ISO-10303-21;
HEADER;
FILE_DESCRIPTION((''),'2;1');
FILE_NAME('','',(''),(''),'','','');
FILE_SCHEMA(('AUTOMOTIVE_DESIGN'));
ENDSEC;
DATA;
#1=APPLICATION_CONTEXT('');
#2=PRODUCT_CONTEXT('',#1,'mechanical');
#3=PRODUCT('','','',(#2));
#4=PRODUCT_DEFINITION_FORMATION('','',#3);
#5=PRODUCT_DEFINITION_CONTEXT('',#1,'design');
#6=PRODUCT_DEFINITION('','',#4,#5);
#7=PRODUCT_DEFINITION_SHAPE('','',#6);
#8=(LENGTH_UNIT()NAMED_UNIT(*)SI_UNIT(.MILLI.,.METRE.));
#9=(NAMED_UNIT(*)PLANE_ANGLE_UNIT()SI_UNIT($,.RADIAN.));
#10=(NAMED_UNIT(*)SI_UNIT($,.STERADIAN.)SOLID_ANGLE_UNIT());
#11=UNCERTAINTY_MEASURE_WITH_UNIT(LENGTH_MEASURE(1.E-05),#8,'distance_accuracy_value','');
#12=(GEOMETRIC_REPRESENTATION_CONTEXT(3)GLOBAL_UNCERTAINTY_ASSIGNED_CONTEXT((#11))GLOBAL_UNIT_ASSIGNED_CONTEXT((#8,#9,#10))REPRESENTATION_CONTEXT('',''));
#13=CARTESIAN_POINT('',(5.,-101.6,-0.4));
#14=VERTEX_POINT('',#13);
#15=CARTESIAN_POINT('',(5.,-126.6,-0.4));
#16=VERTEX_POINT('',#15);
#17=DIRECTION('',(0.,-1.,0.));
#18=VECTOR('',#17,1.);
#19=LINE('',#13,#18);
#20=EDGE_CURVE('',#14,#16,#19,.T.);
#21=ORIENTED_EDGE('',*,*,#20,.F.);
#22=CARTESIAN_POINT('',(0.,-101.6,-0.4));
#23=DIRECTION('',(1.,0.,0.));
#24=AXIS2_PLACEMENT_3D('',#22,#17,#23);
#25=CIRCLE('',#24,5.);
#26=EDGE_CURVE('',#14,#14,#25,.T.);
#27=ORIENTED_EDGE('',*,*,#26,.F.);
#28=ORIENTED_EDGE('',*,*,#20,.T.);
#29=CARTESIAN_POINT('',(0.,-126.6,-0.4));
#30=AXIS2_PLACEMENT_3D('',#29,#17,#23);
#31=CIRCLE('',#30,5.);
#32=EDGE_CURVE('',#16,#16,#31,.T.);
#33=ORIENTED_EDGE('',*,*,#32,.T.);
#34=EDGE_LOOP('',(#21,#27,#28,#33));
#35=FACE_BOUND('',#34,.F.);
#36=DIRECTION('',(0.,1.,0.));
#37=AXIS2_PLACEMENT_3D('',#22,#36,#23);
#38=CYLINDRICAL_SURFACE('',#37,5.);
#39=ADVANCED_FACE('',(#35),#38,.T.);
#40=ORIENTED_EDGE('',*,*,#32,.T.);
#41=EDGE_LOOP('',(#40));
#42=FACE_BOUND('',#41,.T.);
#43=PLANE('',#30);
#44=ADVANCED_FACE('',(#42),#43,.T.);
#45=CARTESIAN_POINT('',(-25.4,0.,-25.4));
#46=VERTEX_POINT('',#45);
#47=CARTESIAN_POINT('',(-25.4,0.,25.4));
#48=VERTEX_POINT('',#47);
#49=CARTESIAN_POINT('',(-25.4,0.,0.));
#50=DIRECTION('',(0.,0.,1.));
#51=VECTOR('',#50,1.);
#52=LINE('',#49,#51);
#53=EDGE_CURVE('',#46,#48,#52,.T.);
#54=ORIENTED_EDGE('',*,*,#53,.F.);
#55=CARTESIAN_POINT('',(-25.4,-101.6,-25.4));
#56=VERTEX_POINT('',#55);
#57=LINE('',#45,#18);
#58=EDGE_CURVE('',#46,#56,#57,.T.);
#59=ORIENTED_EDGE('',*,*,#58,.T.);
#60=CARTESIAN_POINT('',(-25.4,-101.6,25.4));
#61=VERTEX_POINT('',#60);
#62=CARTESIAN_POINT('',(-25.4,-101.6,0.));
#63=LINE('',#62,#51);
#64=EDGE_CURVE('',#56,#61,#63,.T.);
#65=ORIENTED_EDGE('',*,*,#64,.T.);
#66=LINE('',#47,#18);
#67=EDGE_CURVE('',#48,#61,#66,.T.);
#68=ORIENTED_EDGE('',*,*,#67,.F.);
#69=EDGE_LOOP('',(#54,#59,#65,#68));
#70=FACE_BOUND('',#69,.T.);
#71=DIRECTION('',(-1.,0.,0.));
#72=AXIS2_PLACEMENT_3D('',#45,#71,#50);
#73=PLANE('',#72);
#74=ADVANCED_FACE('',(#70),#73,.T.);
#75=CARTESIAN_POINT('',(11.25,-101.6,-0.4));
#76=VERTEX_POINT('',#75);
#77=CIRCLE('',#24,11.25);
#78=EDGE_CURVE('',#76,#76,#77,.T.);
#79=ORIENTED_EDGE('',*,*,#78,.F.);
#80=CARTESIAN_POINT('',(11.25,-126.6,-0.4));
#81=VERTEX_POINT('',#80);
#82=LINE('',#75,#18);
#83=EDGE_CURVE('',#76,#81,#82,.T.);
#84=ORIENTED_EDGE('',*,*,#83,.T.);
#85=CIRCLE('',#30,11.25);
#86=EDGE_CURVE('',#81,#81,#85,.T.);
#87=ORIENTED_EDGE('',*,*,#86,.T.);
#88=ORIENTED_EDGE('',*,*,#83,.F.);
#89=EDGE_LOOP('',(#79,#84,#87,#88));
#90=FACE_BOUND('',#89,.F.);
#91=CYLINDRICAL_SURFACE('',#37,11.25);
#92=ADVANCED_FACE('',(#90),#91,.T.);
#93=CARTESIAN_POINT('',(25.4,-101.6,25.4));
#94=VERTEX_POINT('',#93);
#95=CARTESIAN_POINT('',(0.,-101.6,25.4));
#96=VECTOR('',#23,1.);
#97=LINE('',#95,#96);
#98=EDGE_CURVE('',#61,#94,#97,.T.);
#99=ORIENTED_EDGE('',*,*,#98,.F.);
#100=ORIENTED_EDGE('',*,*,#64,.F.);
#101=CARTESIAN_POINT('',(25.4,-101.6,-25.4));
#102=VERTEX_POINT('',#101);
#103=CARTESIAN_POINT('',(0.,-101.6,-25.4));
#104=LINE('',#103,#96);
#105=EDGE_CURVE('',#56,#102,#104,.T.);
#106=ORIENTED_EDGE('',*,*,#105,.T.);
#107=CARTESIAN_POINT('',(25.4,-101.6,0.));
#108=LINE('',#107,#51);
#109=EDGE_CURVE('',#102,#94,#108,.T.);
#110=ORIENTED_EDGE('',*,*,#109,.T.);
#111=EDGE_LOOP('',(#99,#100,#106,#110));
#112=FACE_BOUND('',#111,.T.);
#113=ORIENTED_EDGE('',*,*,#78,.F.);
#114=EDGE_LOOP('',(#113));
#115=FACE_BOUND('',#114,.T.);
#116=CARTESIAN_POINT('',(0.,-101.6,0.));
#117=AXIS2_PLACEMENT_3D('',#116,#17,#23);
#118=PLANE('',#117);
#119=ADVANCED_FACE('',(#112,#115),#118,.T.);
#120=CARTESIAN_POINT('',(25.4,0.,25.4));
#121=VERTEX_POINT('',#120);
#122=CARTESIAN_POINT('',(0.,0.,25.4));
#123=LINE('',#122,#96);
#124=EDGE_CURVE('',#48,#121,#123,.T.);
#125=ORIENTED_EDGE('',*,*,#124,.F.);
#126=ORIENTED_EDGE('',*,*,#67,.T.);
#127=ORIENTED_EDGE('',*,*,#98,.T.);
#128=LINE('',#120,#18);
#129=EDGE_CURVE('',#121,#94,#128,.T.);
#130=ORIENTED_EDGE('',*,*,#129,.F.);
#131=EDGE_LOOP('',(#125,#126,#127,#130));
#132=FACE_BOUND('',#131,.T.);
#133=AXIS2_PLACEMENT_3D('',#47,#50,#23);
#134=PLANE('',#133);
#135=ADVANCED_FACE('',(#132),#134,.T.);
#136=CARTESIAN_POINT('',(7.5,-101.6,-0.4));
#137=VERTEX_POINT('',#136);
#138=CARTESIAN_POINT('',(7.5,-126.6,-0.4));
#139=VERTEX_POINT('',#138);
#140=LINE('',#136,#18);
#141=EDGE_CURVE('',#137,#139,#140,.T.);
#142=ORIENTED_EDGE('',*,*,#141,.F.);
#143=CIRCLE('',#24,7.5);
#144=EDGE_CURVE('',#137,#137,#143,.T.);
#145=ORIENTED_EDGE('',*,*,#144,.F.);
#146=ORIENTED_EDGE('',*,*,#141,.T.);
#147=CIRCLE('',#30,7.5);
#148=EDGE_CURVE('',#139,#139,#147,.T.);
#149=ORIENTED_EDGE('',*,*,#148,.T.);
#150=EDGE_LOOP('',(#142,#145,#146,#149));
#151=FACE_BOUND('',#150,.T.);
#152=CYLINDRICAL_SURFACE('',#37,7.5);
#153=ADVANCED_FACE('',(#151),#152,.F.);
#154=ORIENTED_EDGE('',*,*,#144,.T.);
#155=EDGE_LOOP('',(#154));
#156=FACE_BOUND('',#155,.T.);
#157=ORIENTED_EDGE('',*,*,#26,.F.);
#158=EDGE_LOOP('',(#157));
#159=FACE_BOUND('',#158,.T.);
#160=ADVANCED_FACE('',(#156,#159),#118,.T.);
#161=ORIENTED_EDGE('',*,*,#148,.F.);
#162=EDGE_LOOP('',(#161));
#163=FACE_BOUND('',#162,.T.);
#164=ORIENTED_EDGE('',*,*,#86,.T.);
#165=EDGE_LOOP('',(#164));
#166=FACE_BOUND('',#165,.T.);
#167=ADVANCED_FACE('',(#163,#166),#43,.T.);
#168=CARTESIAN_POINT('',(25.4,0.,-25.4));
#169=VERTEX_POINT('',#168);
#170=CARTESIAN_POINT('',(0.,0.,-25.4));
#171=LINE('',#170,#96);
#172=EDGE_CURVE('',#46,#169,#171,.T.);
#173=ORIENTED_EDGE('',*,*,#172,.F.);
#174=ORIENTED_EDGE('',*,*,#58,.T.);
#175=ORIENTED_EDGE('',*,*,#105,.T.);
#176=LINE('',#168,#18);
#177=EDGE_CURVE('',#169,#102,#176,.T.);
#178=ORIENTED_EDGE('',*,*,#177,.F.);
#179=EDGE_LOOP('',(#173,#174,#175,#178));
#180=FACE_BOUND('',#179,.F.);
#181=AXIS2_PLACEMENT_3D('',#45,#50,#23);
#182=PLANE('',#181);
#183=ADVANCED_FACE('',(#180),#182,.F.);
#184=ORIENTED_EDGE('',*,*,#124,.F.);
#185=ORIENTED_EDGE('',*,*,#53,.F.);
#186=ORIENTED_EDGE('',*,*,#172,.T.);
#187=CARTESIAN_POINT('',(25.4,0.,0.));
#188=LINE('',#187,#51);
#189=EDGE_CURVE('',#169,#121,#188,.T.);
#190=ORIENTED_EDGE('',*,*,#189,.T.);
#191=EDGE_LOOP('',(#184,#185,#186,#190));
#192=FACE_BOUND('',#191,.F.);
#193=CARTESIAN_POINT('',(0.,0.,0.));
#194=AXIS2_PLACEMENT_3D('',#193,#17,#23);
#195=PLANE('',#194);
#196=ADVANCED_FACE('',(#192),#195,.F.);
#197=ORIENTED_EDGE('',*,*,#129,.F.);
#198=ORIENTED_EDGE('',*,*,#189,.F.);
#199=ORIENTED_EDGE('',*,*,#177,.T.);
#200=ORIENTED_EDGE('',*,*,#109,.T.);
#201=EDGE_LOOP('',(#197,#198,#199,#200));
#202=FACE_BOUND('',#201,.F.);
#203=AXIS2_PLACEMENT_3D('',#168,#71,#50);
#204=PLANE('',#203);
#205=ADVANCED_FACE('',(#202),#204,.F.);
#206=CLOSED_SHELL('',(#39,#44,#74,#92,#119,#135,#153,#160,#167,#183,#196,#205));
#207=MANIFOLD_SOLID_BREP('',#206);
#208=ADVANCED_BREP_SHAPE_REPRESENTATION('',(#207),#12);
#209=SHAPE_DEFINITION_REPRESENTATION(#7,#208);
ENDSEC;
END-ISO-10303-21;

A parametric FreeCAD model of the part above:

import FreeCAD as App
import Part
import Sketcher
from FreeCAD import Vector


def add_polygon(sketch, points):
    """Adds a closed chain of lines whose ends are joined by coincident constraints."""
    first, n = sketch.GeometryCount, len(points)
    for a, b in zip(points, points[1:] + points[:1]):
        sketch.addGeometry(Part.LineSegment(App.Vector(*a, 0), App.Vector(*b, 0)), False)
    for i in range(n):
        sketch.addConstraint(Sketcher.Constraint("Coincident", first + i, 2, first + (i + 1) % n, 1))

doc = App.newDocument("Part")
body = doc.addObject("PartDesign::Body", "Body")

# Sketch on XZ plane
sketch1 = body.newObject("Sketcher::SketchObject", "Sketch")
sketch1.AttachmentSupport = (doc.getObject("XZ_Plane"), [""])
sketch1.MapMode = "FlatFace"
add_polygon(sketch1, [(-25, 25), (-25, -25), (25, -25), (25, 25)])  # lines 0-3
sketch1.addConstraint([
    Sketcher.Constraint("Vertical", 0),
    Sketcher.Constraint("Horizontal", 1),
    Sketcher.Constraint("Vertical", 2),
    Sketcher.Constraint("Horizontal", 3),
    Sketcher.Constraint("Symmetric", 0, 2, 2, 2, -1, 1),
    Sketcher.Constraint("Equal", 3, 0),
    Sketcher.Constraint("DistanceX", 1, 1, 1, 2, 50.8),
])
pad1 = body.newObject("PartDesign::Pad", "Pad")
pad1.Profile = sketch1
pad1.Length = 101.6

# Sketch on XZ plane
sketch2 = body.newObject("Sketcher::SketchObject", "Sketch001")
sketch2.AttachmentSupport = (doc.getObject("XZ_Plane"), [""])
sketch2.MapMode = "FlatFace"
sketch2.AttachmentOffset = App.Placement(Vector(0, 0, 101.6), App.Rotation())
sketch2.addGeometry([
    Part.Circle(Vector(0, 0, 0), Vector(0, 0, 1), 11),
    Part.Circle(Vector(0, 0, 0), Vector(0, 0, 1), 8),
    Part.Circle(Vector(0, 0, 0), Vector(0, 0, 1), 5),
], False)
sketch2.addConstraint([
    Sketcher.Constraint("Coincident", 1, 3, 0, 3),
    Sketcher.Constraint("Coincident", 2, 3, 0, 3),
    Sketcher.Constraint("PointOnObject", 0, 3, -2),
    Sketcher.Constraint("Diameter", 1, 15.0),
    Sketcher.Constraint("Diameter", 2, 10.0),
    Sketcher.Constraint("Diameter", 0, 22.5),
    Sketcher.Constraint("DistanceY", 0, 3, -1, 1, 0.4),
])
pad2 = body.newObject("PartDesign::Pad", "Pad001")
pad2.Profile = sketch2
pad2.Length = 25

doc.recompute()
